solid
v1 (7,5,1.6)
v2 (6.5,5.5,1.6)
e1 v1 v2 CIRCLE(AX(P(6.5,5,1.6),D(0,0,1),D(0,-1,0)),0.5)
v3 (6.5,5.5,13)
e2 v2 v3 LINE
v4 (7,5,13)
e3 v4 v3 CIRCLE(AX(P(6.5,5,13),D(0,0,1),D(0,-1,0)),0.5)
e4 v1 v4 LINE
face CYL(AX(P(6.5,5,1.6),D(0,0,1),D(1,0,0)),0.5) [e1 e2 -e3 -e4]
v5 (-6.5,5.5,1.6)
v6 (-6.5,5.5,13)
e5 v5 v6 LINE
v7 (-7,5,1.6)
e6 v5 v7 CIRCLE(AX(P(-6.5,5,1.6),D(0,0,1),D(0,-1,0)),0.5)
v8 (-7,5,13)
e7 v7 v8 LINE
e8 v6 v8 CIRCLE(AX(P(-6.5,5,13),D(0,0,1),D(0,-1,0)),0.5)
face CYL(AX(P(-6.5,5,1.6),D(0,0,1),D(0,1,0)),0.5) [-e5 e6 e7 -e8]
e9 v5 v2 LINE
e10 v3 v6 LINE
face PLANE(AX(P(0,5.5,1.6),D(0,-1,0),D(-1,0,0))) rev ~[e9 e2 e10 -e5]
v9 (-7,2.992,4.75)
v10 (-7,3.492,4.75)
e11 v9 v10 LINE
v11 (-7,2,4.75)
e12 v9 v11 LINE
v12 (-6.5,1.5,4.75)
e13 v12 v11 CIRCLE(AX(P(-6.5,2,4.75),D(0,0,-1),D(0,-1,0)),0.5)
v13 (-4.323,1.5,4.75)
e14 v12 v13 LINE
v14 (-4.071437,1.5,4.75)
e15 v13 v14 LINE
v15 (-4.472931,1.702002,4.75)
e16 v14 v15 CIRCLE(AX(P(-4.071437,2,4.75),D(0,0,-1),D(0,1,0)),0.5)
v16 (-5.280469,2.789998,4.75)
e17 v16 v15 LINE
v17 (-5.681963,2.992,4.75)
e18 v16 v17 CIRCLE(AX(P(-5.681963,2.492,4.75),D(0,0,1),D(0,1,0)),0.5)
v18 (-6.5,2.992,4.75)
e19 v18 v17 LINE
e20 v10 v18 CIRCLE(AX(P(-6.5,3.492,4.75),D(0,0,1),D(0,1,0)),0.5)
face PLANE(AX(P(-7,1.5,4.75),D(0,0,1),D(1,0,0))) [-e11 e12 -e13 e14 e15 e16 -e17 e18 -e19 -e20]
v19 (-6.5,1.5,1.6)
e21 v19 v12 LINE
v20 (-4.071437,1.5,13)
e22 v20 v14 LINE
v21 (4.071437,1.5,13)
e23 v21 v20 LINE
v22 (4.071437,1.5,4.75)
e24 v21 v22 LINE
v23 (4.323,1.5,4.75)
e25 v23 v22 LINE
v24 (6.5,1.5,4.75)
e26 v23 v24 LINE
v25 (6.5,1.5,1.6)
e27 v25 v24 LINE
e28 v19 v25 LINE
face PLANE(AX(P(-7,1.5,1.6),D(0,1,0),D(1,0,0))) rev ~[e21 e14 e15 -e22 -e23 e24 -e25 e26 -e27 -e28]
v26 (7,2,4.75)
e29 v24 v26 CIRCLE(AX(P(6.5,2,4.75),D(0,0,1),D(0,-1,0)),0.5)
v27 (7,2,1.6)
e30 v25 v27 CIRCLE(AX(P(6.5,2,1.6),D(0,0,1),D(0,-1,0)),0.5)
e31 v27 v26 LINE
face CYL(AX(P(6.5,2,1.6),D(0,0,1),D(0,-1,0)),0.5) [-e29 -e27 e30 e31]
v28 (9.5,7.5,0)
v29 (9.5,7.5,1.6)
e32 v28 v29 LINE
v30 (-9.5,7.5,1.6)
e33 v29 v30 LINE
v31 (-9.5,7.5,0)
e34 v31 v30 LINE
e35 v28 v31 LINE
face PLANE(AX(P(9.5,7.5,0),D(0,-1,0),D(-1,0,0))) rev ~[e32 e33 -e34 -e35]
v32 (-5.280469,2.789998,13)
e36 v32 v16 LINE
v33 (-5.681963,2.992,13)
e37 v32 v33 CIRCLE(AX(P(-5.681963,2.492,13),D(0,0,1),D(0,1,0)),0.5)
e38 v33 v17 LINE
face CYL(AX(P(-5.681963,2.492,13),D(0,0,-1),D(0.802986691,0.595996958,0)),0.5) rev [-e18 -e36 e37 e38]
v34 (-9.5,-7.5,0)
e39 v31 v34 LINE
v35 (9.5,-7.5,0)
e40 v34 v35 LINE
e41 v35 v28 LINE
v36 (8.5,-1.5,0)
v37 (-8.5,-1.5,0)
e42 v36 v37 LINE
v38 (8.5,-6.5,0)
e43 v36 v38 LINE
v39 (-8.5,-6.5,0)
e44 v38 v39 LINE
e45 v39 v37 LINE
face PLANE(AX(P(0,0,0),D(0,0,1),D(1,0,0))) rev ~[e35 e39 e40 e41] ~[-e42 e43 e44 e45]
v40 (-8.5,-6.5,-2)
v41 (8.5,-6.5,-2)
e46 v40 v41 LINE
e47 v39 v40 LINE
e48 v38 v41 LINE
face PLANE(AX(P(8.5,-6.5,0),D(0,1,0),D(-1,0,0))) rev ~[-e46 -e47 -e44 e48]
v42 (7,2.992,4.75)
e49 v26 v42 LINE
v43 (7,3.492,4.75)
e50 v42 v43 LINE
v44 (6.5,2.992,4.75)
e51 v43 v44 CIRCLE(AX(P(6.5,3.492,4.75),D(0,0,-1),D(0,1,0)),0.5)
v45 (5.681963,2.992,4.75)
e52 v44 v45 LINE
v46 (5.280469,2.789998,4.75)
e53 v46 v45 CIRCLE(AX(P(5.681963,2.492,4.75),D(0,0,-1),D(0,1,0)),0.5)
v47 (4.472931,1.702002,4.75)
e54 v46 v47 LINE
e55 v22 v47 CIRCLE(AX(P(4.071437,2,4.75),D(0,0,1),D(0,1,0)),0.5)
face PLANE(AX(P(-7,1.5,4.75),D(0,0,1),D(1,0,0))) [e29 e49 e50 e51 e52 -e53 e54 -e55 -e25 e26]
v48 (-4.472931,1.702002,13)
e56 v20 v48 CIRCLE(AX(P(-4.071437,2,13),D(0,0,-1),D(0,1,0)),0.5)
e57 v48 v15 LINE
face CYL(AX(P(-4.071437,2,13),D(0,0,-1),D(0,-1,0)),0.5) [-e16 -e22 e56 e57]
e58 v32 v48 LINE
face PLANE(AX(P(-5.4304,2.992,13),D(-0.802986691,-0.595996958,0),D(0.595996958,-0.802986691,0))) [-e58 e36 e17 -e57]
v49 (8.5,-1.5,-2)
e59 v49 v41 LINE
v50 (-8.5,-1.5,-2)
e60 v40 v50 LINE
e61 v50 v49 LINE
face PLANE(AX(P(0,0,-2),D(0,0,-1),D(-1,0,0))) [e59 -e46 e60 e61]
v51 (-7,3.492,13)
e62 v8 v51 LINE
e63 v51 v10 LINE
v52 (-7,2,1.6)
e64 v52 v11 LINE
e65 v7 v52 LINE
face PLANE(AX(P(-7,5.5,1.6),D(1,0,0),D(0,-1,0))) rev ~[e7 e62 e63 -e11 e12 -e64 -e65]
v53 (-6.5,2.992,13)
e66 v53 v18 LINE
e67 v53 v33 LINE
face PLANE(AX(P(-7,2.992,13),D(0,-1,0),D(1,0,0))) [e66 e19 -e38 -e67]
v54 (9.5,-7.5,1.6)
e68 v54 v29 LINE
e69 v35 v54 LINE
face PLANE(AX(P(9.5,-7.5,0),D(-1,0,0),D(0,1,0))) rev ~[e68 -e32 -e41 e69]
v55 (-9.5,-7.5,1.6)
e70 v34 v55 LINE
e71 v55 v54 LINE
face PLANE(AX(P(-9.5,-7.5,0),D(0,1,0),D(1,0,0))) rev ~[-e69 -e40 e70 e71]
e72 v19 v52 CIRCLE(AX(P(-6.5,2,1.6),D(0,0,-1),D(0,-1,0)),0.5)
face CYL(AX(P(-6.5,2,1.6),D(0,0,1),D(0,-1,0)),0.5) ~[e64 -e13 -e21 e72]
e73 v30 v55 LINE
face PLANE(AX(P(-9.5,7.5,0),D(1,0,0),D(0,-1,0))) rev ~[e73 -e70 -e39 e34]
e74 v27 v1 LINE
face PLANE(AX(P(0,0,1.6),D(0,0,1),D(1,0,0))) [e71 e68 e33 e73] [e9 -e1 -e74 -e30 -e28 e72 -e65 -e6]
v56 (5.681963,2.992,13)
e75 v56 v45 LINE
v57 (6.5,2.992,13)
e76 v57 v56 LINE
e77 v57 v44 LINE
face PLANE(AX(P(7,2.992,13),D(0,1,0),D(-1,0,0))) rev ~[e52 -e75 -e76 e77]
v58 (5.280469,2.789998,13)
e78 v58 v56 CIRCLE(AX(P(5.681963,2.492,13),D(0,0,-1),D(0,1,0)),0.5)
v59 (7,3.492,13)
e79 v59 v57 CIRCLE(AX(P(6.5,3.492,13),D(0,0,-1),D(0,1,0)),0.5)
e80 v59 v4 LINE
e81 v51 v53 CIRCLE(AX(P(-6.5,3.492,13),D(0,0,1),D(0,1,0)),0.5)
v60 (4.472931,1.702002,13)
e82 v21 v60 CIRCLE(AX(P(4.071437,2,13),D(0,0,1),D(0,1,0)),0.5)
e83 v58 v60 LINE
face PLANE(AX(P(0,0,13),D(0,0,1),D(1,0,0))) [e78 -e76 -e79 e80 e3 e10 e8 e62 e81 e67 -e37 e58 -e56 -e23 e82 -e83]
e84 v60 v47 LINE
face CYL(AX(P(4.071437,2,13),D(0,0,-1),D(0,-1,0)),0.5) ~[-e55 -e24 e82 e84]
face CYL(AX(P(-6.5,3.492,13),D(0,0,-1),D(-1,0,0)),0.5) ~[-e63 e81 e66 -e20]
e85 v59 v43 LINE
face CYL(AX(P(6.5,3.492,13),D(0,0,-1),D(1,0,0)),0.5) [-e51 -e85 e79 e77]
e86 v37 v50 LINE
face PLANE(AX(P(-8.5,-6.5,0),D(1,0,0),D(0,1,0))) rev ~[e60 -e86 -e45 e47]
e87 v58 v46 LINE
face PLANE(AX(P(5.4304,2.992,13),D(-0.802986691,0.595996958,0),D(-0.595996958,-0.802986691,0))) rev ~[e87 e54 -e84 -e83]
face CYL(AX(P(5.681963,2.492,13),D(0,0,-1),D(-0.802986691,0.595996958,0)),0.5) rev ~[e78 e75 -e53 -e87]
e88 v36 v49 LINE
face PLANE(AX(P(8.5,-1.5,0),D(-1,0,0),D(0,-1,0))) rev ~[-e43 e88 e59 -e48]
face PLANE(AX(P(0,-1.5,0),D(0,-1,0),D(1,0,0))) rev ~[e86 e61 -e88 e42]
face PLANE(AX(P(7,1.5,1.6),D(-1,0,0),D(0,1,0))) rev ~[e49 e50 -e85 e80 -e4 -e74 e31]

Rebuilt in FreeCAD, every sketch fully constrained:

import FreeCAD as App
import Part
import Sketcher
from FreeCAD import Vector


def edges_at(feature, points):
    """Names of the edges that pass closest to the given points."""
    edges = feature.Shape.Edges
    near = lambda p: min(range(len(edges)), key=lambda i: edges[i].distToShape(Part.Vertex(*p))[0])
    return sorted({f"Edge{near(p) + 1}" for p in points})


def add_polygon(sketch, points):
    """Adds a closed chain of lines whose ends are joined by coincident constraints."""
    first, n = sketch.GeometryCount, len(points)
    for a, b in zip(points, points[1:] + points[:1]):
        sketch.addGeometry(Part.LineSegment(App.Vector(*a, 0), App.Vector(*b, 0)), False)
    for i in range(n):
        sketch.addConstraint(Sketcher.Constraint("Coincident", first + i, 2, first + (i + 1) % n, 1))

doc = App.newDocument("Part")
body = doc.addObject("PartDesign::Body", "Body")

# Sketch on XY plane
sketch1 = doc.addObject("Sketcher::SketchObject", "Sketch")
body.addObject(sketch1)
sketch1.AttachmentSupport = (doc.XY_Plane, [""])
sketch1.MapMode = "FlatFace"
add_polygon(sketch1, [(-9.5, 7.5), (-9.5, -7.5), (9.5, -7.5), (9.5, 7.5)])  # lines 0-3
sketch1.addConstraint([
    Sketcher.Constraint("Vertical", 0),
    Sketcher.Constraint("Horizontal", 1),
    Sketcher.Constraint("Vertical", 2),
    Sketcher.Constraint("Horizontal", 3),
    Sketcher.Constraint("Symmetric", 0, 2, 2, 2, -1, 1),
    Sketcher.Constraint("DistanceX", 1, 1, 1, 2, 19.0),
    Sketcher.Constraint("DistanceY", 0, 2, 0, 1, 15.0),
])
pad1 = doc.addObject("PartDesign::Pad", "Pad")
body.addObject(pad1)
pad1.Profile = sketch1
pad1.Length = 1.6

# Sketch on XY plane
sketch2 = doc.addObject("Sketcher::SketchObject", "Sketch001")
body.addObject(sketch2)
sketch2.AttachmentSupport = (doc.XY_Plane, [""])
sketch2.MapMode = "FlatFace"
add_polygon(sketch2, [(8.5, -6.5), (-8.5, -6.5), (-8.5, -1.5), (8.5, -1.5)])  # lines 0-3
sketch2.addConstraint([
    Sketcher.Constraint("Horizontal", 0),
    Sketcher.Constraint("Vertical", 1),
    Sketcher.Constraint("Horizontal", 2),
    Sketcher.Constraint("Vertical", 3),
    Sketcher.Constraint("DistanceX", 0, 2, 0, 1, 17.0),
    Sketcher.Constraint("DistanceY", 1, 1, 1, 2, 5.0),
    Sketcher.Constraint("DistanceX", 0, 2, -1, 1, 8.5),
    Sketcher.Constraint("DistanceY", 0, 2, -1, 1, 6.5),
])
pad2 = doc.addObject("PartDesign::Pad", "Pad001")
body.addObject(pad2)
pad2.Profile = sketch2
pad2.Length = 2
pad2.Reversed = True

# Sketch on XY plane
sketch3 = doc.addObject("Sketcher::SketchObject", "Sketch002")
body.addObject(sketch3)
sketch3.AttachmentSupport = (doc.XY_Plane, [""])
sketch3.MapMode = "FlatFace"
sketch3.AttachmentOffset = App.Placement(Vector(0, 0, 1.6), App.Rotation())
add_polygon(sketch3, [(-7, 1.5), (7, 1.5), (7, 5.5), (-7, 5.5)])  # lines 0-3
sketch3.addConstraint([
    Sketcher.Constraint("Horizontal", 0),
    Sketcher.Constraint("Vertical", 1),
    Sketcher.Constraint("Horizontal", 2),
    Sketcher.Constraint("Vertical", 3),
    Sketcher.Constraint("DistanceX", 0, 1, 0, 2, 14.0),
    Sketcher.Constraint("DistanceY", 1, 1, 1, 2, 4.0),
    Sketcher.Constraint("DistanceX", -1, 1, 0, 2, 7.0),
    Sketcher.Constraint("DistanceY", -1, 1, 0, 2, 1.5),
])
pad3 = doc.addObject("PartDesign::Pad", "Pad002")
body.addObject(pad3)
pad3.Profile = sketch3
pad3.Length = 11.4

# Sketch on XY plane
sketch4 = doc.addObject("Sketcher::SketchObject", "Sketch003")
body.addObject(sketch4)
sketch4.AttachmentSupport = (doc.XY_Plane, [""])
sketch4.MapMode = "FlatFace"
sketch4.AttachmentOffset = App.Placement(Vector(0, 0, 13), App.Rotation())
add_polygon(sketch4, [(-5.4304, 2.992), (-7, 2.992), (-7, 1.5), (-4.323, 1.5)])  # lines 0-3
add_polygon(sketch4, [(7, 1.5), (7, 2.992), (5.4304, 2.992), (4.323, 1.5)])  # lines 4-7
sketch4.addConstraint([
    Sketcher.Constraint("Horizontal", 0),
    Sketcher.Constraint("Vertical", 1),
    Sketcher.Constraint("Horizontal", 2),
    Sketcher.Constraint("Vertical", 4),
    Sketcher.Constraint("Horizontal", 5),
    Sketcher.Constraint("Horizontal", 7),
    Sketcher.Constraint("Symmetric", 0, 2, 4, 2, -2),
    Sketcher.Constraint("Symmetric", 2, 2, 6, 2, -2),
    Sketcher.Constraint("Equal", 0, 5),
    Sketcher.Constraint("DistanceX", 0, 2, -1, 1, 7.0),
    Sketcher.Constraint("DistanceY", -1, 1, 1, 2, 1.5),
    Sketcher.Constraint("DistanceX", 2, 1, 2, 2, 2.677),
    Sketcher.Constraint("DistanceY", 1, 2, 1, 1, 1.492),
    Sketcher.Constraint("Distance", 3, 1.858),
])
pocket1 = doc.addObject("PartDesign::Pocket", "Pocket")
body.addObject(pocket1)
pocket1.Profile = sketch4
pocket1.Length = 8.25
doc.recompute()

fillet = doc.addObject("PartDesign::Fillet", "Fillet")
body.addObject(fillet)
fillet.Base = (pocket1, edges_at(pocket1, [
    (7, 5.5, 7.3),
    (-7, 5.5, 7.3),
    (7, 2.992, 8.875),
    (4.323, 1.5, 8.875),
    (-7, 2.992, 8.875),
    (-4.323, 1.5, 8.875),
    (-5.43, 2.992, 8.875),
    (5.43, 2.992, 8.875),
    (7, 1.5, 3.175),
    (-7, 1.5, 3.175),
]))
fillet.Radius = 0.5

doc.recompute()
